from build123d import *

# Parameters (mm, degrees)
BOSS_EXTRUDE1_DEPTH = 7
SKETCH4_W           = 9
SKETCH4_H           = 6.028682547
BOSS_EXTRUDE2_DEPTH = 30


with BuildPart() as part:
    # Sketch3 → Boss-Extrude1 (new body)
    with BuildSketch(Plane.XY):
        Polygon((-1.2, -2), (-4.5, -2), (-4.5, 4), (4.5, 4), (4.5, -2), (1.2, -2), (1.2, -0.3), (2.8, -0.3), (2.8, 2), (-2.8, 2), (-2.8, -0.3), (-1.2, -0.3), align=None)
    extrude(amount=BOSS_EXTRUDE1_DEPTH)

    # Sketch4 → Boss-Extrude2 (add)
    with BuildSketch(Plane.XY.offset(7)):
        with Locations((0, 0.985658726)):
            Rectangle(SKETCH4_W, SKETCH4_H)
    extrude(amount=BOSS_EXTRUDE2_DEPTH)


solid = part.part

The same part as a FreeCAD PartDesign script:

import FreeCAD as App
import Part
import Sketcher

V = App.Vector

doc = App.newDocument("Part")
body = doc.addObject("PartDesign::Body", "Body")

# Sketch on XY plane
sketch1 = body.newObject("Sketcher::SketchObject", "Sketch")
sketch1.AttachmentSupport = (doc.getObject("XY_Plane"), [""])
sketch1.MapMode = "FlatFace"
sketch1.addGeometry([
    Part.LineSegment(V(-4.5, -2, 0), V(-1.2, -2, 0)),  # 0
    Part.LineSegment(V(-1.2, -2, 0), V(-1.2, -0.3, 0)),  # 1
    Part.LineSegment(V(-1.2, -0.3, 0), V(-2.8, -0.3, 0)),  # 2
    Part.LineSegment(V(-2.8, -0.3, 0), V(-2.8, 2, 0)),  # 3
    Part.LineSegment(V(-2.8, 2, 0), V(2.8, 2, 0)),  # 4
    Part.LineSegment(V(2.8, 2, 0), V(2.8, -0.3, 0)),  # 5
    Part.LineSegment(V(2.8, -0.3, 0), V(1.2, -0.3, 0)),  # 6
    Part.LineSegment(V(1.2, -0.3, 0), V(1.2, -2, 0)),  # 7
    Part.LineSegment(V(1.2, -2, 0), V(4.5, -2, 0)),  # 8
    Part.LineSegment(V(4.5, -2, 0), V(4.5, 4, 0)),  # 9
    Part.LineSegment(V(4.5, 4, 0), V(-4.5, 4, 0)),  # 10
    Part.LineSegment(V(-4.5, 4, 0), V(-4.5, -2, 0)),  # 11
], False)
sketch1.addConstraint([
    Sketcher.Constraint("Coincident", 0, 2, 1, 1),
    Sketcher.Constraint("Coincident", 1, 2, 2, 1),
    Sketcher.Constraint("Coincident", 2, 2, 3, 1),
    Sketcher.Constraint("Coincident", 3, 2, 4, 1),
    Sketcher.Constraint("Coincident", 4, 2, 5, 1),
    Sketcher.Constraint("Coincident", 5, 2, 6, 1),
    Sketcher.Constraint("Coincident", 6, 2, 7, 1),
    Sketcher.Constraint("Coincident", 7, 2, 8, 1),
    Sketcher.Constraint("Coincident", 8, 2, 9, 1),
    Sketcher.Constraint("Coincident", 9, 2, 10, 1),
    Sketcher.Constraint("Coincident", 10, 2, 11, 1),
    Sketcher.Constraint("Coincident", 11, 2, 0, 1),
    Sketcher.Constraint("Horizontal", 0),
    Sketcher.Constraint("Vertical", 1),
    Sketcher.Constraint("Horizontal", 2),
    Sketcher.Constraint("Vertical", 3),
    Sketcher.Constraint("Horizontal", 4),
    Sketcher.Constraint("Vertical", 5),
    Sketcher.Constraint("Horizontal", 6),
    Sketcher.Constraint("Vertical", 7),
    Sketcher.Constraint("Horizontal", 8),
    Sketcher.Constraint("Vertical", 9),
    Sketcher.Constraint("Horizontal", 10),
    Sketcher.Constraint("Vertical", 11),
    Sketcher.Constraint("Symmetric", 2, 2, 5, 2, -2),
    Sketcher.Constraint("Symmetric", 0, 2, 7, 2, -2),
    Sketcher.Constraint("Equal", 0, 8),
    Sketcher.Constraint("DistanceX", 10, 2, 10, 1, 9.0),
    Sketcher.Constraint("DistanceY", 9, 1, 9, 2, 6.0),
    Sketcher.Constraint("DistanceX", 0, 1, 0, 2, 3.3),
    Sketcher.Constraint("DistanceX", 2, 2, 2, 1, 1.6),
    Sketcher.Constraint("DistanceY", 1, 1, 1, 2, 1.7),
    Sketcher.Constraint("DistanceY", 3, 1, 3, 2, 2.3),
    Sketcher.Constraint("DistanceY", 0, 2, -1, 1, 2.0),
])
pad1 = body.newObject("PartDesign::Pad", "Pad")
pad1.Profile = sketch1
pad1.Length = 7

# Sketch on XY plane
sketch2 = body.newObject("Sketcher::SketchObject", "Sketch001")
sketch2.AttachmentSupport = (doc.getObject("XY_Plane"), [""])
sketch2.MapMode = "FlatFace"
sketch2.AttachmentOffset = App.Placement(V(0, 0, 7), App.Rotation())
sketch2.addGeometry([
    Part.LineSegment(V(-4, 4, 0), V(-4, -2, 0)),
    Part.LineSegment(V(-4, -2, 0), V(4, -2, 0)),
    Part.LineSegment(V(4, -2, 0), V(4, 4, 0)),
    Part.LineSegment(V(4, 4, 0), V(-4, 4, 0)),
], False)
sketch2.addConstraint([
    Sketcher.Constraint("Coincident", 0, 2, 1, 1),
    Sketcher.Constraint("Coincident", 1, 2, 2, 1),
    Sketcher.Constraint("Coincident", 2, 2, 3, 1),
    Sketcher.Constraint("Coincident", 3, 2, 0, 1),
    Sketcher.Constraint("Vertical", 0),
    Sketcher.Constraint("Horizontal", 1),
    Sketcher.Constraint("Vertical", 2),
    Sketcher.Constraint("Horizontal", 3),
    Sketcher.Constraint("DistanceX", 1, 1, 1, 2, 9.0),
    Sketcher.Constraint("DistanceY", -1, 1, 2, 2, 4.0),
    Sketcher.Constraint("DistanceX", 0, 2, -1, 1, 4.5),
    Sketcher.Constraint("DistanceY", 0, 2, 0, 1, 6.028683),
])
pad2 = body.newObject("PartDesign::Pad", "Pad001")
pad2.Profile = sketch2
pad2.Length = 30

doc.recompute()
